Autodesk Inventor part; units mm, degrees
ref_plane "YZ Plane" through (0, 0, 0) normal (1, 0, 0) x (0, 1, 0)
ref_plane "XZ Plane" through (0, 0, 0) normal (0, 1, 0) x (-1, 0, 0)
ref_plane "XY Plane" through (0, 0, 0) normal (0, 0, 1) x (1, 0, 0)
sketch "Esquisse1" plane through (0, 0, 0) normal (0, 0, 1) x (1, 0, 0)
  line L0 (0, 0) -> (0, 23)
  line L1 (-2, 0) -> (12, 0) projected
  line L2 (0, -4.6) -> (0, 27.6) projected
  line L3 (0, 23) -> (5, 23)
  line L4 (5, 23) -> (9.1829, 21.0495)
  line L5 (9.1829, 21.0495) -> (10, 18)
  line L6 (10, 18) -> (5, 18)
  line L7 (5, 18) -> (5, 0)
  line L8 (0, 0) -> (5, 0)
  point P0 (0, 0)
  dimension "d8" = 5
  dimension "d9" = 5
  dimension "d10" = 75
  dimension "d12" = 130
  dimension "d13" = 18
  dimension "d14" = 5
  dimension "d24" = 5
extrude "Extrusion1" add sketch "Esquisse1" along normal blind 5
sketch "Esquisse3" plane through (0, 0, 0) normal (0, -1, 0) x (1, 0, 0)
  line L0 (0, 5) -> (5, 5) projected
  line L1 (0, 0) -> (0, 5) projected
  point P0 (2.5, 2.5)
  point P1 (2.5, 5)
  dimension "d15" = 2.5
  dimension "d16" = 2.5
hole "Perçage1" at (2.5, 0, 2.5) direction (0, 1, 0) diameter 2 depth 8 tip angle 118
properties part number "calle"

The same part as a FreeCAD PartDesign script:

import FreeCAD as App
import Part
import Sketcher
from FreeCAD import Vector
Q = App.Units.Quantity

doc = App.newDocument("Part")
body = doc.addObject("PartDesign::Body", "Body")

# Sketch on XY plane
sketch1 = doc.addObject("Sketcher::SketchObject", "Sketch")
body.addObject(sketch1)
sketch1.AttachmentSupport = (doc.XY_Plane, [""])
sketch1.MapMode = "FlatFace"
sketch1.addGeometry([
    Part.LineSegment(Vector(0, 23, 0), Vector(0, 0, 0)),  # 0
    Part.LineSegment(Vector(0, 0, 0), Vector(5, 0, 0)),  # 1
    Part.LineSegment(Vector(5, 0, 0), Vector(5, 18, 0)),  # 2
    Part.LineSegment(Vector(5, 18, 0), Vector(10, 18, 0)),  # 3
    Part.LineSegment(Vector(10, 18, 0), Vector(9.2, 21, 0)),  # 4
    Part.LineSegment(Vector(9.2, 21, 0), Vector(5, 23, 0)),  # 5
    Part.LineSegment(Vector(5, 23, 0), Vector(0, 23, 0)),  # 6
], False)
sketch1.addConstraint([
    Sketcher.Constraint("Coincident", 0, 2, 1, 1),
    Sketcher.Constraint("Coincident", 1, 2, 2, 1),
    Sketcher.Constraint("Coincident", 2, 2, 3, 1),
    Sketcher.Constraint("Coincident", 3, 2, 4, 1),
    Sketcher.Constraint("Coincident", 4, 2, 5, 1),
    Sketcher.Constraint("Coincident", 5, 2, 6, 1),
    Sketcher.Constraint("Coincident", 6, 2, 0, 1),
    Sketcher.Constraint("Vertical", 0),
    Sketcher.Constraint("Horizontal", 1),
    Sketcher.Constraint("Vertical", 2),
    Sketcher.Constraint("Horizontal", 3),
    Sketcher.Constraint("Horizontal", 6),
    Sketcher.Constraint("Coincident", 0, 2, -1, 1),
    Sketcher.Constraint("Vertical", 2, 2, 5, 2),
    Sketcher.Constraint("Equal", 1, 3),
    Sketcher.Constraint("DistanceX", 1, 1, 1, 2, Q("5 mm")),
    Sketcher.Constraint("DistanceY", 2, 1, 2, 2, Q("18 mm")),
    Sketcher.Constraint("DistanceY", 2, 2, 5, 2, Q("5 mm")),
    Sketcher.Constraint("Angle", 4, Q("104.9998 deg")),
    Sketcher.Constraint("Angle", 5, Q("155.0002 deg")),
])
pad1 = doc.addObject("PartDesign::Pad", "Pad")
body.addObject(pad1)
pad1.Profile = sketch1
pad1.Length = 5

# Sketch on XZ plane
sketch2 = doc.addObject("Sketcher::SketchObject", "Sketch001")
body.addObject(sketch2)
sketch2.AttachmentSupport = (doc.XZ_Plane, [""])
sketch2.MapMode = "FlatFace"
sketch2.addGeometry(Part.Circle(Vector(2.5, 2.5, 0), Vector(0, 0, 1), 1), False)
sketch2.addConstraint([
    Sketcher.Constraint("Diameter", 0, Q("2 mm")),
    Sketcher.Constraint("DistanceX", -1, 1, 0, 3, Q("2.5 mm")),
    Sketcher.Constraint("DistanceY", -1, 1, 0, 3, Q("2.5 mm")),
])
doc.recompute()
hole = doc.addObject("PartDesign::Hole", "Hole")
body.addObject(hole)
hole.Profile = sketch2
hole.ThreadType = "None"
hole.Diameter = 2
hole.DepthType = "Dimension"
hole.Depth = 8
hole.DrillPoint = "Angled"
hole.DrillPointAngle = 118

doc.recompute()
